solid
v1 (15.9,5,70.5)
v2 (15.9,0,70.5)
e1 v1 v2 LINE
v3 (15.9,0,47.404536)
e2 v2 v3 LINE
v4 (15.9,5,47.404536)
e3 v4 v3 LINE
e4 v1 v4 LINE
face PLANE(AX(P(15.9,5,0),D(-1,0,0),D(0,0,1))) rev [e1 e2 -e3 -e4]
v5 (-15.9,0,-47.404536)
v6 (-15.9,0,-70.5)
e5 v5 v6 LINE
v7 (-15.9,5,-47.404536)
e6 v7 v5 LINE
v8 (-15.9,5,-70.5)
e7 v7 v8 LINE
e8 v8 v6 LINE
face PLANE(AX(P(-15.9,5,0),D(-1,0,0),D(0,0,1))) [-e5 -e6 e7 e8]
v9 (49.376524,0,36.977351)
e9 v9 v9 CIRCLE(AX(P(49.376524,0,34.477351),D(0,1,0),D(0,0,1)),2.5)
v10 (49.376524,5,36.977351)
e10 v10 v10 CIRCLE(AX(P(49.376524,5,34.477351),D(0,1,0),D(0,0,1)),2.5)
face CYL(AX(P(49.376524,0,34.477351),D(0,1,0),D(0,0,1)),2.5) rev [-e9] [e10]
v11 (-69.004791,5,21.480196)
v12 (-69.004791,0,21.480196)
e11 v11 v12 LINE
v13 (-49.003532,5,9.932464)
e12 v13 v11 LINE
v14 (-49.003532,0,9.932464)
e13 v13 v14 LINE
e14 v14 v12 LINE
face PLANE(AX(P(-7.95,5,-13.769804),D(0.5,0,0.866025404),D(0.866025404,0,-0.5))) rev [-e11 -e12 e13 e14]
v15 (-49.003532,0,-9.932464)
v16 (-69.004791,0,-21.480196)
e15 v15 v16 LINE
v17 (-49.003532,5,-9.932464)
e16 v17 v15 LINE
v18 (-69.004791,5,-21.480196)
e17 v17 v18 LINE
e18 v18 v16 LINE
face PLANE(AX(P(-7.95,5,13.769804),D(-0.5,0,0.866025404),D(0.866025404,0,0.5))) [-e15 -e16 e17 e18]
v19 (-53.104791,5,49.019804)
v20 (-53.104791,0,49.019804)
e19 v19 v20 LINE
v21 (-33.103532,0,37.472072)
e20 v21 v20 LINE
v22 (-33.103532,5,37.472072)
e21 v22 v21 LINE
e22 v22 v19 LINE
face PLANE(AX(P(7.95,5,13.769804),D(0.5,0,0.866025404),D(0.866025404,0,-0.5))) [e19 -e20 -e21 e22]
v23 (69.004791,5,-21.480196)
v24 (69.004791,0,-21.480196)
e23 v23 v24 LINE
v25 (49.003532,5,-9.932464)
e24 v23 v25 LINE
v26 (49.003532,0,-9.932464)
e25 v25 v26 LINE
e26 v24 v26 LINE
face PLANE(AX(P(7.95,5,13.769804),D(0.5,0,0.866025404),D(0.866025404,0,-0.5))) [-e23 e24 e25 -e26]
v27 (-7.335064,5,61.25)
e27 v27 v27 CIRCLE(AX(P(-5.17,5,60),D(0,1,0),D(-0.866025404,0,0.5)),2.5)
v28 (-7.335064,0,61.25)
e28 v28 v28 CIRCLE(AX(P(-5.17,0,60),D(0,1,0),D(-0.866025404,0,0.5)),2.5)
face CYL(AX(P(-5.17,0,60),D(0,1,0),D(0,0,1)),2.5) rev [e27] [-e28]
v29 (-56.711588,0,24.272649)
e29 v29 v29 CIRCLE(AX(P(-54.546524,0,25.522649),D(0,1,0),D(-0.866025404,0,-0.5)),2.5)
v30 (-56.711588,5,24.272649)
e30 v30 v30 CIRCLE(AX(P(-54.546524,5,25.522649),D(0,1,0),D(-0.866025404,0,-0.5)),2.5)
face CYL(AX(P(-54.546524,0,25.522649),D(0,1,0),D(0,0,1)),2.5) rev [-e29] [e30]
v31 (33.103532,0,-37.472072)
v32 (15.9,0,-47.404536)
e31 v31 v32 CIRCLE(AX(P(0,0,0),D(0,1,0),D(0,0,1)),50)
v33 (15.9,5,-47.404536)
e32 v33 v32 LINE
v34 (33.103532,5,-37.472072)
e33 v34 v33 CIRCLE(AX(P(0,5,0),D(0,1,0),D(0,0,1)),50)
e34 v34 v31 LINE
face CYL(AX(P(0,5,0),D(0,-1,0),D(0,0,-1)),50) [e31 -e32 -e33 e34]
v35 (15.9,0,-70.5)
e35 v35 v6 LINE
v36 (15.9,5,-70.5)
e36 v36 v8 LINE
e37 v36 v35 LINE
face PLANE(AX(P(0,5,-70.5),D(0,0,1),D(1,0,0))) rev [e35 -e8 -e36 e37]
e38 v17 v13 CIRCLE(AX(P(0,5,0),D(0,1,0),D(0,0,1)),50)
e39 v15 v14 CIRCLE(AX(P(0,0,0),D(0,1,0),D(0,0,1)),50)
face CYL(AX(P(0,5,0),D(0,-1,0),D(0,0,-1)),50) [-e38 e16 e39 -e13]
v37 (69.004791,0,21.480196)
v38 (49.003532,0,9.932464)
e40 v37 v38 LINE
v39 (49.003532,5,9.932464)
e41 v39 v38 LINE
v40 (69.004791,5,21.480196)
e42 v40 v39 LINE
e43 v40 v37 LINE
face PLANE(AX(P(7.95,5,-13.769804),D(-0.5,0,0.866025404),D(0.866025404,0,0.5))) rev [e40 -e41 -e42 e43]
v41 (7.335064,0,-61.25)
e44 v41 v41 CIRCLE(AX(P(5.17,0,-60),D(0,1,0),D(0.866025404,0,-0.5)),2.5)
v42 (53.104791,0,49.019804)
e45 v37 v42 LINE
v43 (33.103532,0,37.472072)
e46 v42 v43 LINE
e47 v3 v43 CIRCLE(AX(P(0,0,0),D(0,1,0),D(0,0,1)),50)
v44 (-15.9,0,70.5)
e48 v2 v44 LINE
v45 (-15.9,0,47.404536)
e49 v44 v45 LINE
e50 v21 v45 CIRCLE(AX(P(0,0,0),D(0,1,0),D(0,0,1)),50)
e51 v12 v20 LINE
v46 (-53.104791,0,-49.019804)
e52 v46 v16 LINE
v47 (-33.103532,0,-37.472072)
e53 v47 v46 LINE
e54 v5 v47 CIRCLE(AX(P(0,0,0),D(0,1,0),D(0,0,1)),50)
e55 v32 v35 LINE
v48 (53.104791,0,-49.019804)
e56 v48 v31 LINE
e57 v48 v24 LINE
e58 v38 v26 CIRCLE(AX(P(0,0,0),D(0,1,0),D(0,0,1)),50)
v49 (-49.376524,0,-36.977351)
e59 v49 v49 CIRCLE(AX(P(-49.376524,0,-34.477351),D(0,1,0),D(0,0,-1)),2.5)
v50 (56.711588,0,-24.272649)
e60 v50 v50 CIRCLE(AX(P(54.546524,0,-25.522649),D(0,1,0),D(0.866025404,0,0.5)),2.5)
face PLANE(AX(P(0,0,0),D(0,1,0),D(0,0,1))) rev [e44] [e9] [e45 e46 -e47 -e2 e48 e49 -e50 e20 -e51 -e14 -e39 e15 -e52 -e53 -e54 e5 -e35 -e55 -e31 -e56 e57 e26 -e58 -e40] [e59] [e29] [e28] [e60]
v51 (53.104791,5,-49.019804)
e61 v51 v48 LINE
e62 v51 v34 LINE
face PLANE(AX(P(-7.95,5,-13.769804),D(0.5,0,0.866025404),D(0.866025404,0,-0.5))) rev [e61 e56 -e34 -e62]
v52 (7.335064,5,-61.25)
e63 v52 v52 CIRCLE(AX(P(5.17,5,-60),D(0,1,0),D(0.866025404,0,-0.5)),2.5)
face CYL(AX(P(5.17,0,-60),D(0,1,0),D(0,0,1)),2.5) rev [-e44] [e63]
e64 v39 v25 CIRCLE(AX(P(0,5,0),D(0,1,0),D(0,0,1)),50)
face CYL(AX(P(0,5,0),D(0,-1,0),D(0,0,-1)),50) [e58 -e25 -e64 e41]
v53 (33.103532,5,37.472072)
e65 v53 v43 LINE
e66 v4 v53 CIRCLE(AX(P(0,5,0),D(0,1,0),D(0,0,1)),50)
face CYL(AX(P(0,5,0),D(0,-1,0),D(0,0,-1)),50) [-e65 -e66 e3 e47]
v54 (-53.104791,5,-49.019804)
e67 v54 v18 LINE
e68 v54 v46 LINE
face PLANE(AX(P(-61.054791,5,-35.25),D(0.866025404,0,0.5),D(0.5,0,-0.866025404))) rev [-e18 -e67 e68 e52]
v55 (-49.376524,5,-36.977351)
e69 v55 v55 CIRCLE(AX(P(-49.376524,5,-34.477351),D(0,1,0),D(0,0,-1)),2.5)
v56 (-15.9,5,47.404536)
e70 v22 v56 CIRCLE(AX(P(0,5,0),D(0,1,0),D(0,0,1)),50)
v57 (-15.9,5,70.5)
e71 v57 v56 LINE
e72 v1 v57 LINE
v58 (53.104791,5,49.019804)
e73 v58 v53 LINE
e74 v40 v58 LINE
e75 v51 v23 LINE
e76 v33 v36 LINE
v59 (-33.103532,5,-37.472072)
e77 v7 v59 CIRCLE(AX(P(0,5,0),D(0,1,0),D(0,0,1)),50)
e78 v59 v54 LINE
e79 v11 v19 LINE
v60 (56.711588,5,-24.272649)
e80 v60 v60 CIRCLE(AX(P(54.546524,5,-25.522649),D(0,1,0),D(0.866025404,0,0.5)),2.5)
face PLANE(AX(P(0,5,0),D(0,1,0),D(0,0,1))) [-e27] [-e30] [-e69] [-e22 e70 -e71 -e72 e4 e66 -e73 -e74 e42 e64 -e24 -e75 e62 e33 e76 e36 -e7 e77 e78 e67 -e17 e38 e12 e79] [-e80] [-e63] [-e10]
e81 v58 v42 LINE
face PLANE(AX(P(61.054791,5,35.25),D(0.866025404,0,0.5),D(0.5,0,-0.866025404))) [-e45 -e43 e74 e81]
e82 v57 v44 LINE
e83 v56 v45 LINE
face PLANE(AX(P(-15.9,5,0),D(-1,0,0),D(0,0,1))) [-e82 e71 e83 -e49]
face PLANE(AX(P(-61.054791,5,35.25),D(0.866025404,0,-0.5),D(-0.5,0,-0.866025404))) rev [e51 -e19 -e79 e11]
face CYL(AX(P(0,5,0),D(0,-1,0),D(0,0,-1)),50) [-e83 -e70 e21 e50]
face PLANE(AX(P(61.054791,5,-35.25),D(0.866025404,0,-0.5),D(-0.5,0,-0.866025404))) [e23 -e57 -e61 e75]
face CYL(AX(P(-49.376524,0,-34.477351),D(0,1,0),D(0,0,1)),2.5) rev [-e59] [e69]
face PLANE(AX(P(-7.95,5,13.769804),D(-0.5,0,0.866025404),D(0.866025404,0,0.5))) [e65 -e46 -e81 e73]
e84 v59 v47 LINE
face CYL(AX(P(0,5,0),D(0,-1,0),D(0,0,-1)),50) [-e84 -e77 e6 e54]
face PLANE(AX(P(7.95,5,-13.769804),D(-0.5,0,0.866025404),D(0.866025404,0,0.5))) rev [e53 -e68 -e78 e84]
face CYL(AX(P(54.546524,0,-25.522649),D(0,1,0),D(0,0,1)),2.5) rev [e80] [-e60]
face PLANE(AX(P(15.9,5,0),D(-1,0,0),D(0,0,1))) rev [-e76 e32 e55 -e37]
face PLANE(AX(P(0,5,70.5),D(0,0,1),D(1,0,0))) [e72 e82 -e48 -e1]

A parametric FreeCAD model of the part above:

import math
import FreeCAD as App
import Part
import Sketcher

V = App.Vector
Q = App.Units.Quantity

doc = App.newDocument("Part")
body = doc.addObject("PartDesign::Body", "Body")

# Sketch on XZ plane
sketch1 = body.newObject("Sketcher::SketchObject", "Sketch")
sketch1.AttachmentSupport = (doc.getObject("XZ_Plane"), [""])
sketch1.MapMode = "FlatFace"
sketch1.addGeometry([
    Part.ArcOfCircle(Part.Circle(V(0, 0, 0), V(0, 0, 1), 50), math.radians(109), math.radians(251)),  # 0
    Part.LineSegment(V(-16, 47, 0), V(-16, 70, 0)),  # 1
    Part.LineSegment(V(-16, 70, 0), V(16, 70, 0)),  # 2
    Part.LineSegment(V(16, 70, 0), V(16, 47, 0)),  # 3
    Part.ArcOfCircle(Part.Circle(V(0, 0, 0), V(0, 0, 1), 50), math.radians(0), math.radians(71)),  # 4
    Part.ArcOfCircle(Part.Circle(V(0, 0, 0), V(0, 0, 1), 50), math.radians(-71), math.radians(0)),  # 5
    Part.LineSegment(V(16, -47, 0), V(16, -70, 0)),  # 6
    Part.LineSegment(V(16, -70, 0), V(-16, -70, 0)),  # 7
    Part.LineSegment(V(-16, -70, 0), V(-16, -47, 0)),  # 8
], False)
sketch1.addConstraint([
    Sketcher.Constraint("Coincident", 0, 1, 1, 1),
    Sketcher.Constraint("Coincident", 1, 2, 2, 1),
    Sketcher.Constraint("Coincident", 2, 2, 3, 1),
    Sketcher.Constraint("Coincident", 3, 2, 4, 2),
    Sketcher.Constraint("Tangent", 4, 1, 5, 2),
    Sketcher.Constraint("Coincident", 5, 1, 6, 1),
    Sketcher.Constraint("Coincident", 6, 2, 7, 1),
    Sketcher.Constraint("Coincident", 7, 2, 8, 1),
    Sketcher.Constraint("Coincident", 8, 2, 0, 2),
    Sketcher.Constraint("Vertical", 1),
    Sketcher.Constraint("Horizontal", 2),
    Sketcher.Constraint("Vertical", 3),
    Sketcher.Constraint("Vertical", 6),
    Sketcher.Constraint("Horizontal", 7),
    Sketcher.Constraint("Vertical", 8),
    Sketcher.Constraint("Coincident", 0, 3, -1, 1),
    Sketcher.Constraint("Coincident", 4, 3, -1, 1),
    Sketcher.Constraint("Equal", 0, 4),
    Sketcher.Constraint("Equal", 4, 5),
    Sketcher.Constraint("Symmetric", 1, 2, 6, 2, -1, 1),
    Sketcher.Constraint("PointOnObject", 4, 1, -1),
    Sketcher.Constraint("Horizontal", 0, 1, 3, 2),
    Sketcher.Constraint("Horizontal", 5, 1, 8, 2),
    Sketcher.Constraint("Radius", 0, Q("50 mm")),
    Sketcher.Constraint("DistanceX", 2, 1, 2, 2, Q("31.8 mm")),
    Sketcher.Constraint("DistanceY", -1, 1, 1, 2, Q("70.5 mm")),
])
pad1 = body.newObject("PartDesign::Pad", "Pad")
pad1.Profile = sketch1
pad1.Length = 5
pad1.Reversed = True
doc.recompute()

polarpattern = body.newObject("PartDesign::PolarPattern", "PolarPattern")
polarpattern.Originals = [pad1]
polarpattern.Axis = (doc.getObject("Y_Axis"), [""])
polarpattern.Angle = 120
polarpattern.Occurrences = 3
body.Tip = polarpattern

# Sketch on XZ plane
sketch2 = body.newObject("Sketcher::SketchObject", "Sketch001")
sketch2.AttachmentSupport = (doc.getObject("XZ_Plane"), [""])
sketch2.MapMode = "FlatFace"
sketch2.AttachmentOffset = App.Placement(V(0, 0, -5), App.Rotation())
sketch2.addGeometry(Part.Circle(V(49.4, 34.5, 0), V(0, 0, 1), 2.5), False)
sketch2.addConstraint([
    Sketcher.Constraint("Diameter", 0, Q("5 mm")),
    Sketcher.Constraint("DistanceY", -1, 1, 0, 3, Q("34.477351 mm")),
    Sketcher.Constraint("DistanceX", -1, 1, 0, 3, Q("49.376524 mm")),
])
pocket1 = body.newObject("PartDesign::Pocket", "Pocket")
pocket1.Profile = sketch2
pocket1.Type = "ThroughAll"
pocket1.Reversed = True
doc.recompute()

polarpattern2 = body.newObject("PartDesign::PolarPattern", "PolarPattern001")
polarpattern2.Originals = [pocket1]
polarpattern2.Axis = (doc.getObject("Y_Axis"), [""])
polarpattern2.Angle = 360
polarpattern2.Occurrences = 6
body.Tip = polarpattern2

doc.recompute()
